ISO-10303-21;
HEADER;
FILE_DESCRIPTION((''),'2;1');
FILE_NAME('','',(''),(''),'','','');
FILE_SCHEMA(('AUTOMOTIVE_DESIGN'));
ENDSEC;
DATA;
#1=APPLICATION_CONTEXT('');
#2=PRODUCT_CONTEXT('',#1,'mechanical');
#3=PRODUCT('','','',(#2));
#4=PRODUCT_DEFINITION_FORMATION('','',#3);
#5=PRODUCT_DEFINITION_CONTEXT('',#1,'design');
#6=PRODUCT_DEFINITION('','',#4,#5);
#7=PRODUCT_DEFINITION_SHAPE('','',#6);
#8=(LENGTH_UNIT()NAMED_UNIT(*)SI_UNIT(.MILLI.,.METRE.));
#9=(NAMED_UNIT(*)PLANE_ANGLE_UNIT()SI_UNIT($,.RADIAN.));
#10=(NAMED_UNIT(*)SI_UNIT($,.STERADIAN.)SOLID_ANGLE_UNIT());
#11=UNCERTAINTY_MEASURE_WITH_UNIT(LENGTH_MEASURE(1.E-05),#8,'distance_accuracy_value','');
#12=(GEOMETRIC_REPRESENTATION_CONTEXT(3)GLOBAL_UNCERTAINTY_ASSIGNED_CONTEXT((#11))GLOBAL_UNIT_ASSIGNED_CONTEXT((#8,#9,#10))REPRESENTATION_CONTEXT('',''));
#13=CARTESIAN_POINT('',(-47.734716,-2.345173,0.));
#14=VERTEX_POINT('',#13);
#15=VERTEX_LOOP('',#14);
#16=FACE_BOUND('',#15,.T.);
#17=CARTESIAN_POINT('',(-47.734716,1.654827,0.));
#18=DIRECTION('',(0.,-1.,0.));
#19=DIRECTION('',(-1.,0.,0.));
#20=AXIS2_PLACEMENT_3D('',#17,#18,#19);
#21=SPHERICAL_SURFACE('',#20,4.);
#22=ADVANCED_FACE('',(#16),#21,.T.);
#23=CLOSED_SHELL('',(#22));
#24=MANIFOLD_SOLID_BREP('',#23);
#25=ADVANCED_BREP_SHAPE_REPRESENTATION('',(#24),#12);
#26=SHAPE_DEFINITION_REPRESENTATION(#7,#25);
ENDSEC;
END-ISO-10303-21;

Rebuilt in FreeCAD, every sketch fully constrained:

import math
import FreeCAD as App
import Part
import Sketcher
from FreeCAD import Vector

doc = App.newDocument("Part")
body = doc.addObject("PartDesign::Body", "Body")

# Sketch on XY plane
sketch1 = body.newObject("Sketcher::SketchObject", "Sketch")
sketch1.AttachmentSupport = (doc.getObject("XY_Plane"), [""])
sketch1.MapMode = "FlatFace"
sketch1.addGeometry([
    Part.ArcOfCircle(Part.Circle(Vector(-47.7, 1.7, 0), Vector(0, 0, 1), 4), math.radians(90), math.radians(270)),
    Part.LineSegment(Vector(-47.7, -2.3, 0), Vector(-47.7, 5.7, 0)),
], False)
sketch1.addGeometry(Part.LineSegment(Vector(-47.7, 5.7, 0), Vector(-47.7, -2.3, 0)), True)  # axis
sketch1.addConstraint([
    Sketcher.Constraint("Coincident", 0, 1, 1, 2),
    Sketcher.Constraint("Coincident", 1, 1, 0, 2),
    Sketcher.Constraint("Vertical", 1),
    Sketcher.Constraint("Vertical", 2),
    Sketcher.Constraint("Coincident", 2, 1, 0, 1),
    Sketcher.Constraint("Equal", 1, 2),
    Sketcher.Constraint("Radius", 0, 4.0),
    Sketcher.Constraint("DistanceX", 0, 3, -1, 1, 47.734716),
    Sketcher.Constraint("DistanceY", -1, 1, 0, 3, 1.654827),
    Sketcher.Constraint("DistanceX", 0, 1, -1, 1, 47.734716),
])
revolution = body.newObject("PartDesign::Revolution", "Revolution")
revolution.Profile = sketch1
revolution.ReferenceAxis = (sketch1, ["Axis0"])
revolution.Angle = 360

doc.recompute()
